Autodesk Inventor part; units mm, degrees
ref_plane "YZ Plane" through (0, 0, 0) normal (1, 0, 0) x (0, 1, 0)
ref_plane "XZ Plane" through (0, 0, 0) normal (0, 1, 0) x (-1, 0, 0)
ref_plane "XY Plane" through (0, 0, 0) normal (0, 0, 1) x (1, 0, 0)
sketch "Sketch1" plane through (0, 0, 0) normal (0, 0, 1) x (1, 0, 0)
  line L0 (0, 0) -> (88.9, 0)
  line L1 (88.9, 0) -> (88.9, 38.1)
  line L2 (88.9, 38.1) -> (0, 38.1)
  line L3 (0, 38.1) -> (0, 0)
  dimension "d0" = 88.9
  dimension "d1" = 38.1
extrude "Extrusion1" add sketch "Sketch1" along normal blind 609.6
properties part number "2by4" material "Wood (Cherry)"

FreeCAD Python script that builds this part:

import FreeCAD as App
import Part
import Sketcher

V = App.Vector
Q = App.Units.Quantity

doc = App.newDocument("Part")
body = doc.addObject("PartDesign::Body", "Body")

sketch1 = body.newObject("Sketcher::SketchObject", "Sketch")
sketch1.AttachmentSupport = (doc.getObject("XY_Plane"), [""])
sketch1.MapMode = "FlatFace"
sketch1.addGeometry([
    Part.LineSegment(V(0, 38.1, 0), V(0, 0, 0)),
    Part.LineSegment(V(0, 0, 0), V(88.9, 0, 0)),
    Part.LineSegment(V(88.9, 0, 0), V(88.9, 38.1, 0)),
    Part.LineSegment(V(88.9, 38.1, 0), V(0, 38.1, 0)),
], False)
sketch1.addConstraint([
    Sketcher.Constraint("Coincident", 0, 2, 1, 1),
    Sketcher.Constraint("Coincident", 1, 2, 2, 1),
    Sketcher.Constraint("Coincident", 2, 2, 3, 1),
    Sketcher.Constraint("Coincident", 3, 2, 0, 1),
    Sketcher.Constraint("Vertical", 0),
    Sketcher.Constraint("Horizontal", 1),
    Sketcher.Constraint("Vertical", 2),
    Sketcher.Constraint("Horizontal", 3),
    Sketcher.Constraint("Coincident", 0, 2, -1, 1),
    Sketcher.Constraint("DistanceX", 1, 1, 1, 2, Q("3.5 in")),
    Sketcher.Constraint("DistanceY", 0, 2, 0, 1, Q("1.5 in")),
])
pad1 = body.newObject("PartDesign::Pad", "Pad")
pad1.Profile = sketch1
pad1.Length = Q("24 in")

doc.recompute()
